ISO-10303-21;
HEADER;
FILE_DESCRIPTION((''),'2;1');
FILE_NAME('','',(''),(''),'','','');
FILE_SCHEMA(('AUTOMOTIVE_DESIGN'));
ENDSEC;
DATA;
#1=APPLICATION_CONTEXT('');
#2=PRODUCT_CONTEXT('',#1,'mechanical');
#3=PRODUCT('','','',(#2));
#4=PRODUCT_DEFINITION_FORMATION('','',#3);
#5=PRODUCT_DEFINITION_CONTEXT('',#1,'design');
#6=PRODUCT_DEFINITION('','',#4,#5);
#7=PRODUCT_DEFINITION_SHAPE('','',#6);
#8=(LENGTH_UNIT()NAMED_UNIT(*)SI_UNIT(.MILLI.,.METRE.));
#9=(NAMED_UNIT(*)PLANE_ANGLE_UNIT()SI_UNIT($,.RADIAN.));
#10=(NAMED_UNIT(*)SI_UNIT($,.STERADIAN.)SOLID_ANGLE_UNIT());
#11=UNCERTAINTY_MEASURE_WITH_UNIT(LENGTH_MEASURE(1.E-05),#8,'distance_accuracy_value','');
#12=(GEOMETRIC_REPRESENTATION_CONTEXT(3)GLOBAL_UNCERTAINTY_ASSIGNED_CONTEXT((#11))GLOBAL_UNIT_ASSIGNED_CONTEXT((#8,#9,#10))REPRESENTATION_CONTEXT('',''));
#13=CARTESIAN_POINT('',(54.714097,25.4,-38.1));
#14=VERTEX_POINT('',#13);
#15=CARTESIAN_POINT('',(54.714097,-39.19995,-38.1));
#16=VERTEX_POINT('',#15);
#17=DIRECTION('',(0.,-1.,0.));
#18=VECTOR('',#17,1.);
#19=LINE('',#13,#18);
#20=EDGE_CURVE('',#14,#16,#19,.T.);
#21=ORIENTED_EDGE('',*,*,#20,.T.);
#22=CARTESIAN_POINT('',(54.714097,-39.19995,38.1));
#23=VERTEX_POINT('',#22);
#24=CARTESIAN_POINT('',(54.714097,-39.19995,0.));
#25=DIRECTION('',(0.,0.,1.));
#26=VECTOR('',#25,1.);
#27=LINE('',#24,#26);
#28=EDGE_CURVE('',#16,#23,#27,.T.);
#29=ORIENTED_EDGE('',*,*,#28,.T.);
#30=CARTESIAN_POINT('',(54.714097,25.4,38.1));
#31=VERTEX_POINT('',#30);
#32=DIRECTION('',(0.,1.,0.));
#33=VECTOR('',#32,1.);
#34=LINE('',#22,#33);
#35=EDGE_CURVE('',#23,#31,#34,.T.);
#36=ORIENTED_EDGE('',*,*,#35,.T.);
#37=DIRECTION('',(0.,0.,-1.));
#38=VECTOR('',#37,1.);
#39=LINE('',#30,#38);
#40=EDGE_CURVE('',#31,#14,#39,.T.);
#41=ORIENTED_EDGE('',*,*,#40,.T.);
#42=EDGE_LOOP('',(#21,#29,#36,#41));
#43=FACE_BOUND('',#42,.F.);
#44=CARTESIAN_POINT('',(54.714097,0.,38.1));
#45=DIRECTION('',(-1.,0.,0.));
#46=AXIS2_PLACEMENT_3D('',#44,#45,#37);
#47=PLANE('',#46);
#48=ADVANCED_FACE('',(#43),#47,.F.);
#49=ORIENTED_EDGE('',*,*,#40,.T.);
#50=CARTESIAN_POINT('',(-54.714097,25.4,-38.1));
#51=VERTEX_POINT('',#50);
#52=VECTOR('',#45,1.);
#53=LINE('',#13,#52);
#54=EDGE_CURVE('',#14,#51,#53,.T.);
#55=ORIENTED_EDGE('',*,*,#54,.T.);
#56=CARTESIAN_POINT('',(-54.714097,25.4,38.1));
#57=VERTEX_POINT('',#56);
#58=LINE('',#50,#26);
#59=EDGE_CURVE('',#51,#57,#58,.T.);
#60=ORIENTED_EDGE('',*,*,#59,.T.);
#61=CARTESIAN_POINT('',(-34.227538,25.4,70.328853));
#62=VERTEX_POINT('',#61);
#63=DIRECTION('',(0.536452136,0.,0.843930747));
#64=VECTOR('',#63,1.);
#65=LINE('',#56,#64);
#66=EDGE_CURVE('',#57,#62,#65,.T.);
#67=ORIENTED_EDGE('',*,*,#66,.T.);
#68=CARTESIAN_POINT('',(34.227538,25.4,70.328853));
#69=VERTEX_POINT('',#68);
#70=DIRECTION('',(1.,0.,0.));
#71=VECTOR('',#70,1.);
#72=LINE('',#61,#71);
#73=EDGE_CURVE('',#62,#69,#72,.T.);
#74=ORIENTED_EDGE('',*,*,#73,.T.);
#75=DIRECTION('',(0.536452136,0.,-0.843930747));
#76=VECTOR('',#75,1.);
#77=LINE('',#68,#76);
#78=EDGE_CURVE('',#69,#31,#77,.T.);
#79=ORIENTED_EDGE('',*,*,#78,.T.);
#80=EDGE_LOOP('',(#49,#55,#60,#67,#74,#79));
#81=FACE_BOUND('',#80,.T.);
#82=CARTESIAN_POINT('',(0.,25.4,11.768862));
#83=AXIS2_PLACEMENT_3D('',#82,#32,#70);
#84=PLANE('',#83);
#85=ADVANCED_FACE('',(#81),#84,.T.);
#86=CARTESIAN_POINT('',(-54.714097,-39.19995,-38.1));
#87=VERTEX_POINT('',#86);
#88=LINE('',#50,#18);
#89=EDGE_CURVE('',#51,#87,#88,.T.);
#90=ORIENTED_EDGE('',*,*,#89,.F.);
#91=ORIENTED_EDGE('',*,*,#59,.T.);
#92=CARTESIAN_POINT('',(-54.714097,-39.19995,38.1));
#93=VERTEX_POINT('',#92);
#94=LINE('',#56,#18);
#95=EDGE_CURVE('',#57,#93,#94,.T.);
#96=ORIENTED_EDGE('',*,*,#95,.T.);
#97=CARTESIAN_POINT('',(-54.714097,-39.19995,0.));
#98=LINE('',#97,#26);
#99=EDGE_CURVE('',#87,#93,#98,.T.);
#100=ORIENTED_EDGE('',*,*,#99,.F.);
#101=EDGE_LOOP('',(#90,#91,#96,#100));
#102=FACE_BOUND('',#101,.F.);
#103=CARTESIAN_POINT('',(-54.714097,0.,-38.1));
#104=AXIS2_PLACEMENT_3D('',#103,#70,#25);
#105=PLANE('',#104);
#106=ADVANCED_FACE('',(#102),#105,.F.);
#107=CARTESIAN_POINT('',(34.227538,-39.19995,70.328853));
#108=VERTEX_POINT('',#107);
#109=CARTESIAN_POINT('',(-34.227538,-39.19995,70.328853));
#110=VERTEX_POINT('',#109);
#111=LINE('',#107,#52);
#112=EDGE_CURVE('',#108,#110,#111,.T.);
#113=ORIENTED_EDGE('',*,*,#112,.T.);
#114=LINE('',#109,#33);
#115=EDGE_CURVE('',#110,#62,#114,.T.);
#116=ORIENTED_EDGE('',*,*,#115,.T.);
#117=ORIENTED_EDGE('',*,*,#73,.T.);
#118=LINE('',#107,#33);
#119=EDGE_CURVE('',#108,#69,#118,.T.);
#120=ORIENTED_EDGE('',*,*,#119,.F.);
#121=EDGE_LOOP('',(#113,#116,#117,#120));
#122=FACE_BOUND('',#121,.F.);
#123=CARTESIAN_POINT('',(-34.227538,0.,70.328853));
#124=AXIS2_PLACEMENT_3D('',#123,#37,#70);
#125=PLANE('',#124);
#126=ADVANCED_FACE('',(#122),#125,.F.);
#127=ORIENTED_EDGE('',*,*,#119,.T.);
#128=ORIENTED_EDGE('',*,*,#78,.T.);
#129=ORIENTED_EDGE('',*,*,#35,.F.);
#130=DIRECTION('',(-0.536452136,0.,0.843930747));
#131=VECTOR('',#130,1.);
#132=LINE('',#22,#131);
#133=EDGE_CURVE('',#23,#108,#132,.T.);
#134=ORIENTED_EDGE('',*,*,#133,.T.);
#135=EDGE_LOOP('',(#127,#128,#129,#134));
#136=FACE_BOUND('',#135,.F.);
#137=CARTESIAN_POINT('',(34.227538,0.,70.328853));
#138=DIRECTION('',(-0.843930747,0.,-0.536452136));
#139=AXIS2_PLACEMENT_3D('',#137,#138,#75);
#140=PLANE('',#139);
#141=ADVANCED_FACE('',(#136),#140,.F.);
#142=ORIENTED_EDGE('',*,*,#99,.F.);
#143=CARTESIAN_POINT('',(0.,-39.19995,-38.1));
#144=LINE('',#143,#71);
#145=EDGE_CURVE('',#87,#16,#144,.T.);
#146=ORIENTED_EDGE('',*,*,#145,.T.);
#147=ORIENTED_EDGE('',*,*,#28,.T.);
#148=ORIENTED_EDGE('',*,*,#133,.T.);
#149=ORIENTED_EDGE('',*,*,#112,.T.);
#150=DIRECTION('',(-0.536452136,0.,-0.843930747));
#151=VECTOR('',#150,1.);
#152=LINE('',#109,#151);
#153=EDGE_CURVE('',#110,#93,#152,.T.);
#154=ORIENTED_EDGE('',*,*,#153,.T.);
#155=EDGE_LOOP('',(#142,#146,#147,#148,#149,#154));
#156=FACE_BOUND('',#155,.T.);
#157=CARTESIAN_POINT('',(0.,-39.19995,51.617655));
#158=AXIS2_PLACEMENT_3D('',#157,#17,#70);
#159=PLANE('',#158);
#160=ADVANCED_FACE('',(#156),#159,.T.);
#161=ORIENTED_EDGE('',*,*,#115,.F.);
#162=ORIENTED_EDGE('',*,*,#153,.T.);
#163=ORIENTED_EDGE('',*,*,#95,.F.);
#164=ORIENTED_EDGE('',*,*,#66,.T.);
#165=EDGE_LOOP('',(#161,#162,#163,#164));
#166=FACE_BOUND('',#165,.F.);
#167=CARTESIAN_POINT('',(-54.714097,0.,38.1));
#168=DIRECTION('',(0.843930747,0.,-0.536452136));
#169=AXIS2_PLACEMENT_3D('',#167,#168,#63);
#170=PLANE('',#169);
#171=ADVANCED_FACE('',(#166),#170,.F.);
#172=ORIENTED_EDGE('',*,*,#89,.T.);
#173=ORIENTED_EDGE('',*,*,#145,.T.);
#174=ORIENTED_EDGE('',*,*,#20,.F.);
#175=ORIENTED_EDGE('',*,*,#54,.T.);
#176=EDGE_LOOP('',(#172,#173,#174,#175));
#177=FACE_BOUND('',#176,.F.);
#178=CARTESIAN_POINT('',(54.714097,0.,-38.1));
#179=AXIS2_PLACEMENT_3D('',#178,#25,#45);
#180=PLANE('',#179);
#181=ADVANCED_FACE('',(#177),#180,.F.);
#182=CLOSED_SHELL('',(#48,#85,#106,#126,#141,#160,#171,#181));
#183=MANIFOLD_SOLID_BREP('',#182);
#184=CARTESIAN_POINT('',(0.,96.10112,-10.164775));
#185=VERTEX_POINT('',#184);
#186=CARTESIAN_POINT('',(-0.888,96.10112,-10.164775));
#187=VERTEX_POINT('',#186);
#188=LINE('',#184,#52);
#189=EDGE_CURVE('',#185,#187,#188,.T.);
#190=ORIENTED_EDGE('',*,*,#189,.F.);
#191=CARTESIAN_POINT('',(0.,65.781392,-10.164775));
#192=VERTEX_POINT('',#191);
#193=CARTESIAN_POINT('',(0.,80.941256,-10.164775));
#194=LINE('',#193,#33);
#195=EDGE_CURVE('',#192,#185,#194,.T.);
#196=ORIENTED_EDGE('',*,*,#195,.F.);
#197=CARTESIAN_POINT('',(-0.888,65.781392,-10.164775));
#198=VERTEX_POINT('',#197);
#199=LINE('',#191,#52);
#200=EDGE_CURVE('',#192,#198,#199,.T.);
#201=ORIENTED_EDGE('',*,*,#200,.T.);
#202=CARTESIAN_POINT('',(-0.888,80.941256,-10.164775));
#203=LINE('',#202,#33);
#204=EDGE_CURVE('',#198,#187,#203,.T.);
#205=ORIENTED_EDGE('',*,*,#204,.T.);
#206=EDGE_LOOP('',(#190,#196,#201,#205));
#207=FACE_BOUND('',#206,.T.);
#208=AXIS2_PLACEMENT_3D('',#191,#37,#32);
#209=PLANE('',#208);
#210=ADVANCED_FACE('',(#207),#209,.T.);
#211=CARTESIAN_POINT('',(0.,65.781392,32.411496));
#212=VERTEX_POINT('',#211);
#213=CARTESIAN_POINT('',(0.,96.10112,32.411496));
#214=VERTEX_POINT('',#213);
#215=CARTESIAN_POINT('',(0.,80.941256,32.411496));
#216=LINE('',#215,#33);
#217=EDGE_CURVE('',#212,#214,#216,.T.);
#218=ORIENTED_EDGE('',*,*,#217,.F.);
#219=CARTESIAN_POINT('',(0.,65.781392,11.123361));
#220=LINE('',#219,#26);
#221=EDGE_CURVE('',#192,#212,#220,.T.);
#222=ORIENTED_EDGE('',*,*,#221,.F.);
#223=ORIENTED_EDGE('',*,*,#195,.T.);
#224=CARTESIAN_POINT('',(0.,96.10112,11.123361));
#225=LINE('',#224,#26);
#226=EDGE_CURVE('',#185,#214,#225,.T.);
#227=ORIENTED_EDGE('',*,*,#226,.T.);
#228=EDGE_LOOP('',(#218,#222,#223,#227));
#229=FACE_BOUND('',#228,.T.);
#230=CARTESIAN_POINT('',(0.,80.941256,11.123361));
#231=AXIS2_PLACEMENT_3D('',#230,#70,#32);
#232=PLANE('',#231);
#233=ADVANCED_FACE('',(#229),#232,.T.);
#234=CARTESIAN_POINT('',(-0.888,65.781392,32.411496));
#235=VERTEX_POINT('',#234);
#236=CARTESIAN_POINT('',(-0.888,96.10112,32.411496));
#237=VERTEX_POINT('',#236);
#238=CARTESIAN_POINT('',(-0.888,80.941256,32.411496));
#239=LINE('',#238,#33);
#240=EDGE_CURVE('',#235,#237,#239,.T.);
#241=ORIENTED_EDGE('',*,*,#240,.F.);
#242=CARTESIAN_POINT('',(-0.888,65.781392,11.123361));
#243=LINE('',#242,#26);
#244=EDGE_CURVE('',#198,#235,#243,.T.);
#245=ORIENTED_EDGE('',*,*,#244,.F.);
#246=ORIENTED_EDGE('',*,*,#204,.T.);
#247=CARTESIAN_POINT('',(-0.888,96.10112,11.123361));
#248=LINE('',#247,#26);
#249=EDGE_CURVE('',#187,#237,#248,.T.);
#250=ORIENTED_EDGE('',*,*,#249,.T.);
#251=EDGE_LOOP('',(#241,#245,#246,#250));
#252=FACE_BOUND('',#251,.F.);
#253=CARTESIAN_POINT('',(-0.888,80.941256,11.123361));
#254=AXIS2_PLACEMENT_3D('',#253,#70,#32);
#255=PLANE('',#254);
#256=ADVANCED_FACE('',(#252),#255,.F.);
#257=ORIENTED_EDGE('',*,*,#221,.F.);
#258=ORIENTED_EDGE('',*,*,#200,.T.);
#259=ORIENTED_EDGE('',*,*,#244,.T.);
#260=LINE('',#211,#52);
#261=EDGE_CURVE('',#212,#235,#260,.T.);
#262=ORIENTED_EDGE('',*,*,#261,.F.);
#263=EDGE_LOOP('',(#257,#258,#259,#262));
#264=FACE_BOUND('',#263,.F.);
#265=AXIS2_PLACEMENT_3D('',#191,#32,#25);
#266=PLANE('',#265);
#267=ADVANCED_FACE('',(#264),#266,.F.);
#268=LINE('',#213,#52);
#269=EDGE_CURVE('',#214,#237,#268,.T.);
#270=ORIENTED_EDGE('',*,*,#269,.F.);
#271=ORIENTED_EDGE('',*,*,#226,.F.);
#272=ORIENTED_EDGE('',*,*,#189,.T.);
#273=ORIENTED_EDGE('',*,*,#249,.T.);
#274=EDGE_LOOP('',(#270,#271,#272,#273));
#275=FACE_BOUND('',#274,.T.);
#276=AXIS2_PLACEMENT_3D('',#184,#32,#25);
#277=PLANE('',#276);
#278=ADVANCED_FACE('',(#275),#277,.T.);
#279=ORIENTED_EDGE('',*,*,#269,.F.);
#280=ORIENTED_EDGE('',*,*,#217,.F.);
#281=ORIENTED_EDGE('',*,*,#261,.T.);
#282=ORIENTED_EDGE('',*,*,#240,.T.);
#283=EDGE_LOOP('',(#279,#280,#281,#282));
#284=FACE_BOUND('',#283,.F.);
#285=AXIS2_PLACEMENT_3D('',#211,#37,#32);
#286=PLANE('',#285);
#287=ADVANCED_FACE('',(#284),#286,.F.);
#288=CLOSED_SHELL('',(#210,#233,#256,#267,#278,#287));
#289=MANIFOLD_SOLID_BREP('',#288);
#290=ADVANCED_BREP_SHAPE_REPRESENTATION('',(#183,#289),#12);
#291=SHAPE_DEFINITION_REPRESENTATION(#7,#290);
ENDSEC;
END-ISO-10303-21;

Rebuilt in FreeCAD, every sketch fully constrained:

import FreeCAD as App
import Part
import Sketcher

V = App.Vector
Q = App.Units.Quantity


def add_polygon(sketch, points):
    """Adds a closed chain of lines whose ends are joined by coincident constraints."""
    first, n = sketch.GeometryCount, len(points)
    for a, b in zip(points, points[1:] + points[:1]):
        sketch.addGeometry(Part.LineSegment(App.Vector(*a, 0), App.Vector(*b, 0)), False)
    for i in range(n):
        sketch.addConstraint(Sketcher.Constraint("Coincident", first + i, 2, first + (i + 1) % n, 1))

doc = App.newDocument("Part")
body = doc.addObject("PartDesign::Body", "Body")

# Sketch on XZ plane
sketch1 = body.newObject("Sketcher::SketchObject", "Sketch")
sketch1.AttachmentSupport = (doc.getObject("XZ_Plane"), [""])
sketch1.MapMode = "FlatFace"
add_polygon(sketch1, [(-34, 70), (-55, 38), (-55, -38), (55, -38), (55, 38), (34, 70)])  # lines 0-5
sketch1.addConstraint([
    Sketcher.Constraint("Vertical", 1),
    Sketcher.Constraint("Horizontal", 2),
    Sketcher.Constraint("Vertical", 3),
    Sketcher.Constraint("Horizontal", 5),
    Sketcher.Constraint("Symmetric", 0, 2, 2, 2, -1, 1),
    Sketcher.Constraint("Horizontal", 0, 2, 3, 2),
    Sketcher.Constraint("Equal", 0, 4),
    Sketcher.Constraint("DistanceY", 1, 2, 1, 1, Q("3 in")),
    Sketcher.Constraint("Distance", 0, 38.188978),
    Sketcher.Constraint("DistanceX", 2, 1, 2, 2, 109.428194),
    Sketcher.Constraint("DistanceX", 5, 2, 5, 1, 68.455076),
])
pad1 = body.newObject("PartDesign::Pad", "Pad")
pad1.Profile = sketch1
pad1.Length = 39.19995

# Sketch on XZ plane
sketch2 = body.newObject("Sketcher::SketchObject", "Sketch001")
sketch2.AttachmentSupport = (doc.getObject("XZ_Plane"), [""])
sketch2.MapMode = "FlatFace"
add_polygon(sketch2, [(-55, 38), (-34, 70), (34, 70), (55, 38), (55, -38), (-55, -38)])  # lines 0-5
sketch2.addConstraint([
    Sketcher.Constraint("Horizontal", 1),
    Sketcher.Constraint("Vertical", 3),
    Sketcher.Constraint("Horizontal", 4),
    Sketcher.Constraint("Vertical", 5),
    Sketcher.Constraint("Symmetric", 2, 2, 4, 2, -1, 1),
    Sketcher.Constraint("Horizontal", 2, 2, 5, 2),
    Sketcher.Constraint("Equal", 0, 2),
    Sketcher.Constraint("DistanceY", 3, 2, 3, 1, Q("3 in")),
    Sketcher.Constraint("Distance", 0, 38.188978),
    Sketcher.Constraint("DistanceX", 1, 1, 1, 2, 68.455076),
    Sketcher.Constraint("DistanceX", 4, 2, 4, 1, 109.428194),
])
pad2 = body.newObject("PartDesign::Pad", "Pad001")
pad2.Profile = sketch2
pad2.Length = Q("1 in")
pad2.Reversed = True
body2 = doc.addObject("PartDesign::Body", "Body001")

# Sketch on YZ plane
sketch3 = body2.newObject("Sketcher::SketchObject", "Sketch002")
sketch3.AttachmentSupport = (doc.getObject("YZ_Plane001"), [""])
sketch3.MapMode = "FlatFace"
add_polygon(sketch3, [(66, 32), (66, -10), (96, -10), (96, 32)])  # lines 0-3
sketch3.addConstraint([
    Sketcher.Constraint("Vertical", 0),
    Sketcher.Constraint("Horizontal", 1),
    Sketcher.Constraint("Vertical", 2),
    Sketcher.Constraint("Horizontal", 3),
    Sketcher.Constraint("DistanceY", 0, 2, 0, 1, 42.576271),
    Sketcher.Constraint("DistanceX", 1, 1, 1, 2, 30.319728),
    Sketcher.Constraint("DistanceX", -1, 1, 0, 2, 65.781392),
    Sketcher.Constraint("DistanceY", 0, 2, -1, 1, 10.164775),
])
pad3 = body2.newObject("PartDesign::Pad", "Pad002")
pad3.Profile = sketch3
pad3.Length = 0.888
pad3.Reversed = True

doc.recompute()
